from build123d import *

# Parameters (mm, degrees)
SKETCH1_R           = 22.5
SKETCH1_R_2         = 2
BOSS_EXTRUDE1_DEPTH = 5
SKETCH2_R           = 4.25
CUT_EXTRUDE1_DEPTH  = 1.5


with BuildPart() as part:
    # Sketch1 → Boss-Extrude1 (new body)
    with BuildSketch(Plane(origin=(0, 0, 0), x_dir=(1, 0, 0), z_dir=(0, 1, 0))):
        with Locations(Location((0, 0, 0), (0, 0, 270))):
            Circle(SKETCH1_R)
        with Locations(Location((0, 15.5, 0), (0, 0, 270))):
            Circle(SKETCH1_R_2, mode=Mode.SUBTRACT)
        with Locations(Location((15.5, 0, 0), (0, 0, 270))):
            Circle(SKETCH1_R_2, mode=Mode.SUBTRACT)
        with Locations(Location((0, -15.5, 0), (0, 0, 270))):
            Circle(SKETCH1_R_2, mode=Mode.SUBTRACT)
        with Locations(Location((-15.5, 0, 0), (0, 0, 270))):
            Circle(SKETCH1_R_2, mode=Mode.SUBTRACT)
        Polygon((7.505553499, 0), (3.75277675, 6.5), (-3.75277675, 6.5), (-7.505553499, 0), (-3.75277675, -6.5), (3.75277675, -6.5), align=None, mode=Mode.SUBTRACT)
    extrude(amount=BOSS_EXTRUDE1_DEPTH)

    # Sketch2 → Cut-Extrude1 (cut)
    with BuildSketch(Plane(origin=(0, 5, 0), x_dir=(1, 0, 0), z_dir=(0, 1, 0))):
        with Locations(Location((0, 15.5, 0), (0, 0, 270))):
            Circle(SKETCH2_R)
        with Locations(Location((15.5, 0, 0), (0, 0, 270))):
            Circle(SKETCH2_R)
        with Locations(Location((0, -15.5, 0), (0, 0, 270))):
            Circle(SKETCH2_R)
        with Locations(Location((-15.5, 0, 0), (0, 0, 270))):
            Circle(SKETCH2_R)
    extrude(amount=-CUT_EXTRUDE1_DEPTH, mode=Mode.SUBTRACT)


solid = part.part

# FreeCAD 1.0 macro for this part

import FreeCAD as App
import Part
import Sketcher

V = App.Vector
Q = App.Units.Quantity


def add_polygon(sketch, points):
    """Adds a closed chain of lines whose ends are joined by coincident constraints."""
    first, n = sketch.GeometryCount, len(points)
    for a, b in zip(points, points[1:] + points[:1]):
        sketch.addGeometry(Part.LineSegment(App.Vector(*a, 0), App.Vector(*b, 0)), False)
    for i in range(n):
        sketch.addConstraint(Sketcher.Constraint("Coincident", first + i, 2, first + (i + 1) % n, 1))

doc = App.newDocument("Part")
body = doc.addObject("PartDesign::Body", "Body")

sketch1 = doc.addObject("Sketcher::SketchObject", "Sketch")
body.addObject(sketch1)
sketch1.AttachmentSupport = (doc.XZ_Plane, [""])
sketch1.MapMode = "FlatFace"
sketch1.addGeometry(Part.Circle(V(0, 0, 0), V(0, 0, 1), 22.5), False)
sketch1.addGeometry(Part.Circle(V(0, -15.5, 0), V(0, 0, 1), 2), False)
sketch1.addGeometry(Part.Circle(V(-15.5, 0, 0), V(0, 0, 1), 2), False)
sketch1.addGeometry(Part.Circle(V(15.5, 0, 0), V(0, 0, 1), 2), False)
add_polygon(sketch1, [(3.8, -6.5), (7.5, 0), (3.8, 6.5), (-3.8, 6.5), (-7.5, 0), (-3.8, -6.5)])
sketch1.addGeometry(Part.Circle(V(0, 15.5, 0), V(0, 0, 1), 2), False)
sketch1.addConstraint(Sketcher.Constraint("Horizontal", 6))
sketch1.addConstraint(Sketcher.Constraint("Horizontal", 9))
sketch1.addConstraint(Sketcher.Constraint("Coincident", 0, 3, -1, 1))
sketch1.addConstraint(Sketcher.Constraint("Equal", 1, 2))
sketch1.addConstraint(Sketcher.Constraint("Equal", 2, 3))
sketch1.addConstraint(Sketcher.Constraint("Equal", 3, 10))
sketch1.addConstraint(Sketcher.Constraint("Symmetric", 2, 3, 3, 3, -1, 1))
sketch1.addConstraint(Sketcher.Constraint("Symmetric", 1, 3, 10, 3, -1, 1))
sketch1.addConstraint(Sketcher.Constraint("Symmetric", 4, 2, 7, 2, -1, 1))
sketch1.addConstraint(Sketcher.Constraint("Symmetric", 5, 2, 8, 2, -1, 1))
sketch1.addConstraint(Sketcher.Constraint("PointOnObject", 1, 3, -2))
sketch1.addConstraint(Sketcher.Constraint("PointOnObject", 2, 3, -1))
sketch1.addConstraint(Sketcher.Constraint("PointOnObject", 4, 2, -1))
sketch1.addConstraint(Sketcher.Constraint("Parallel", 4, 7))
sketch1.addConstraint(Sketcher.Constraint("Vertical", 6, 2, 8, 2))
sketch1.addConstraint(Sketcher.Constraint("Diameter", 0, Q("45 mm")))
sketch1.addConstraint(Sketcher.Constraint("Diameter", 1, Q("4 mm")))
sketch1.addConstraint(Sketcher.Constraint("Angle", 4, Q("60 deg")))
sketch1.addConstraint(Sketcher.Constraint("DistanceX", 2, 3, 3, 3, Q("31 mm")))
sketch1.addConstraint(Sketcher.Constraint("DistanceY", 1, 3, 10, 3, Q("31 mm")))
sketch1.addConstraint(Sketcher.Constraint("DistanceY", 5, 2, 10, 3, Q("9 mm")))
sketch1.addConstraint(Sketcher.Constraint("DistanceX", 6, 2, 6, 1, Q("7.505554 mm")))
pad1 = doc.addObject("PartDesign::Pad", "Pad")
body.addObject(pad1)
pad1.Profile = sketch1
pad1.Length = 5
pad1.Reversed = True

sketch2 = doc.addObject("Sketcher::SketchObject", "Sketch001")
body.addObject(sketch2)
sketch2.AttachmentSupport = (doc.XZ_Plane, [""])
sketch2.MapMode = "FlatFace"
sketch2.AttachmentOffset = App.Placement(V(0, 0, -5), App.Rotation())
sketch2.addGeometry(Part.Circle(V(0, -15.5, 0), V(0, 0, 1), 4.2), False)
sketch2.addGeometry(Part.Circle(V(15.5, 0, 0), V(0, 0, 1), 4.2), False)
sketch2.addGeometry(Part.Circle(V(0, 15.5, 0), V(0, 0, 1), 4.2), False)
sketch2.addGeometry(Part.Circle(V(-15.5, 0, 0), V(0, 0, 1), 4.2), False)
sketch2.addConstraint(Sketcher.Constraint("Equal", 0, 1))
sketch2.addConstraint(Sketcher.Constraint("Equal", 1, 2))
sketch2.addConstraint(Sketcher.Constraint("Equal", 2, 3))
sketch2.addConstraint(Sketcher.Constraint("Symmetric", 0, 3, 2, 3, -1, 1))
sketch2.addConstraint(Sketcher.Constraint("Symmetric", 1, 3, 3, 3, -1, 1))
sketch2.addConstraint(Sketcher.Constraint("PointOnObject", 0, 3, -2))
sketch2.addConstraint(Sketcher.Constraint("PointOnObject", 1, 3, -1))
sketch2.addConstraint(Sketcher.Constraint("Diameter", 0, Q("8.5 mm")))
sketch2.addConstraint(Sketcher.Constraint("DistanceY", 0, 3, 2, 3, Q("31 mm")))
sketch2.addConstraint(Sketcher.Constraint("DistanceX", 3, 3, 1, 3, Q("31 mm")))
pocket1 = doc.addObject("PartDesign::Pocket", "Pocket")
body.addObject(pocket1)
pocket1.Profile = sketch2
pocket1.Length = 1.5
pocket1.Reversed = True

doc.recompute()
